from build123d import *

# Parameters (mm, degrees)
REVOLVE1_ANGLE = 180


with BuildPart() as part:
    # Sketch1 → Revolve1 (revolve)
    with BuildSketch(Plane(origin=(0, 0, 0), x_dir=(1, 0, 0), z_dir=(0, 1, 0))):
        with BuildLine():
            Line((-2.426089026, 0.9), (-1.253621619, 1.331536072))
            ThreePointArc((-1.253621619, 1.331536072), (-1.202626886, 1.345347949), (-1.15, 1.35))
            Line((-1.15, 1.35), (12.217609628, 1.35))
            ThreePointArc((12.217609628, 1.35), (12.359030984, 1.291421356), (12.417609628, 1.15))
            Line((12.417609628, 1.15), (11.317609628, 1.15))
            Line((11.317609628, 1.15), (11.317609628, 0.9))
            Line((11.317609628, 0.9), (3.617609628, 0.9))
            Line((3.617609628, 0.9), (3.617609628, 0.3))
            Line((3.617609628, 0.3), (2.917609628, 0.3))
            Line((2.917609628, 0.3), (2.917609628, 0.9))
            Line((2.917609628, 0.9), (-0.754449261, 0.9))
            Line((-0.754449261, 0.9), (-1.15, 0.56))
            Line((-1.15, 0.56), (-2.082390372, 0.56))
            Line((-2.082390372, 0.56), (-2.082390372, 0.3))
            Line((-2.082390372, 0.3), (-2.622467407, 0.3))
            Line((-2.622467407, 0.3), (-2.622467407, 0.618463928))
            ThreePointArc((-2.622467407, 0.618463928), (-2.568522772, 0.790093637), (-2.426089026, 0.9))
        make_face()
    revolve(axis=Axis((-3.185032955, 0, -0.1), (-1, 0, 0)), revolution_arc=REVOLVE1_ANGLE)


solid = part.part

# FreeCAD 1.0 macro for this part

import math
import FreeCAD as App
import Part
import Sketcher
from FreeCAD import Vector

doc = App.newDocument("Part")
body = doc.addObject("PartDesign::Body", "Body")

# Sketch on XZ plane
sketch1 = body.newObject("Sketcher::SketchObject", "Sketch")
sketch1.AttachmentSupport = (doc.getObject("XZ_Plane"), [""])
sketch1.MapMode = "FlatFace"
sketch1.addGeometry(Part.LineSegment(Vector(-1.25, -1.33, 0), Vector(-2.43, -0.9, 0)), False)
sketch1.addGeometry(Part.ArcOfCircle(Part.Circle(Vector(-2.32, -0.62, 0), Vector(0, 0, 1), 0.3), math.radians(-180), math.radians(-110)), False)
sketch1.addGeometry(Part.LineSegment(Vector(-2.62, -0.62, 0), Vector(-2.62, -0.3, 0)), False)
sketch1.addGeometry(Part.LineSegment(Vector(-2.62, -0.3, 0), Vector(-2.08, -0.3, 0)), False)
sketch1.addGeometry(Part.LineSegment(Vector(-2.08, -0.3, 0), Vector(-2.08, -0.56, 0)), False)
sketch1.addGeometry(Part.LineSegment(Vector(-2.08, -0.56, 0), Vector(-1.15, -0.56, 0)), False)
sketch1.addGeometry(Part.LineSegment(Vector(-1.15, -0.56, 0), Vector(-0.75, -0.9, 0)), False)
sketch1.addGeometry(Part.LineSegment(Vector(-0.75, -0.9, 0), Vector(2.92, -0.9, 0)), False)
sketch1.addGeometry(Part.LineSegment(Vector(2.92, -0.9, 0), Vector(2.92, -0.3, 0)), False)
sketch1.addGeometry(Part.LineSegment(Vector(2.92, -0.3, 0), Vector(3.62, -0.3, 0)), False)
sketch1.addGeometry(Part.LineSegment(Vector(3.62, -0.3, 0), Vector(3.62, -0.9, 0)), False)
sketch1.addGeometry(Part.LineSegment(Vector(3.62, -0.9, 0), Vector(11.32, -0.9, 0)), False)
sketch1.addGeometry(Part.LineSegment(Vector(11.32, -0.9, 0), Vector(11.32, -1.15, 0)), False)
sketch1.addGeometry(Part.LineSegment(Vector(11.32, -1.15, 0), Vector(12.42, -1.15, 0)), False)
sketch1.addGeometry(Part.ArcOfCircle(Part.Circle(Vector(12.22, -1.15, 0), Vector(0, 0, 1), 0.2), math.radians(-90), math.radians(0)), False)
sketch1.addGeometry(Part.LineSegment(Vector(12.22, -1.35, 0), Vector(-1.15, -1.35, 0)), False)
sketch1.addGeometry(Part.ArcOfCircle(Part.Circle(Vector(-1.15, -1.05, 0), Vector(0, 0, 1), 0.3), math.radians(-110), math.radians(-90)), False)
sketch1.addGeometry(Part.LineSegment(Vector(12.42, -0.1, 0), Vector(-2.62, -0.1, 0)), True)  # axis
sketch1.addConstraint(Sketcher.Constraint("Tangent", 0, 2, 1, 2))
sketch1.addConstraint(Sketcher.Constraint("Tangent", 1, 1, 2, 1))
sketch1.addConstraint(Sketcher.Constraint("Coincident", 2, 2, 3, 1))
sketch1.addConstraint(Sketcher.Constraint("Coincident", 3, 2, 4, 1))
sketch1.addConstraint(Sketcher.Constraint("Coincident", 4, 2, 5, 1))
sketch1.addConstraint(Sketcher.Constraint("Coincident", 5, 2, 6, 1))
sketch1.addConstraint(Sketcher.Constraint("Coincident", 6, 2, 7, 1))
sketch1.addConstraint(Sketcher.Constraint("Coincident", 7, 2, 8, 1))
sketch1.addConstraint(Sketcher.Constraint("Coincident", 8, 2, 9, 1))
sketch1.addConstraint(Sketcher.Constraint("Coincident", 9, 2, 10, 1))
sketch1.addConstraint(Sketcher.Constraint("Coincident", 10, 2, 11, 1))
sketch1.addConstraint(Sketcher.Constraint("Coincident", 11, 2, 12, 1))
sketch1.addConstraint(Sketcher.Constraint("Coincident", 12, 2, 13, 1))
sketch1.addConstraint(Sketcher.Constraint("Coincident", 13, 2, 14, 2))
sketch1.addConstraint(Sketcher.Constraint("Tangent", 14, 1, 15, 1))
sketch1.addConstraint(Sketcher.Constraint("Tangent", 15, 2, 16, 2))
sketch1.addConstraint(Sketcher.Constraint("Tangent", 16, 1, 0, 1))
sketch1.addConstraint(Sketcher.Constraint("Vertical", 2))
sketch1.addConstraint(Sketcher.Constraint("Horizontal", 3))
sketch1.addConstraint(Sketcher.Constraint("Vertical", 4))
sketch1.addConstraint(Sketcher.Constraint("Horizontal", 5))
sketch1.addConstraint(Sketcher.Constraint("Horizontal", 7))
sketch1.addConstraint(Sketcher.Constraint("Vertical", 8))
sketch1.addConstraint(Sketcher.Constraint("Horizontal", 9))
sketch1.addConstraint(Sketcher.Constraint("Vertical", 10))
sketch1.addConstraint(Sketcher.Constraint("Horizontal", 11))
sketch1.addConstraint(Sketcher.Constraint("Vertical", 12))
sketch1.addConstraint(Sketcher.Constraint("Horizontal", 13))
sketch1.addConstraint(Sketcher.Constraint("Horizontal", 15))
sketch1.addConstraint(Sketcher.Constraint("Horizontal", 17))
sketch1.addConstraint(Sketcher.Constraint("Equal", 1, 16))
sketch1.addConstraint(Sketcher.Constraint("Horizontal", 0, 2, 6, 2))
sketch1.addConstraint(Sketcher.Constraint("Horizontal", 3, 2, 8, 2))
sketch1.addConstraint(Sketcher.Constraint("Horizontal", 7, 2, 10, 2))
sketch1.addConstraint(Sketcher.Constraint("Horizontal", 14, 3, 12, 2))
sketch1.addConstraint(Sketcher.Constraint("Vertical", 16, 3, 5, 2))
sketch1.addConstraint(Sketcher.Constraint("Vertical", 13, 2, 17, 1))
sketch1.addConstraint(Sketcher.Constraint("Vertical", 2, 2, 17, 2))
sketch1.addConstraint(Sketcher.Constraint("Radius", 1, 0.3))
sketch1.addConstraint(Sketcher.Constraint("Radius", 14, 0.2))
sketch1.addConstraint(Sketcher.Constraint("DistanceX", 9, 1, 9, 2, 0.7))
sketch1.addConstraint(Sketcher.Constraint("DistanceX", 11, 1, 11, 2, 7.7))
sketch1.addConstraint(Sketcher.Constraint("DistanceX", 13, 1, 13, 2, 1.1))
sketch1.addConstraint(Sketcher.Constraint("DistanceY", 8, 1, 8, 2, 0.6))
sketch1.addConstraint(Sketcher.Constraint("DistanceX", 4, 2, 7, 2, 5.0))
sketch1.addConstraint(Sketcher.Constraint("DistanceY", 4, 2, 4, 1, 0.26))
sketch1.addConstraint(Sketcher.Constraint("DistanceY", 12, 2, 12, 1, 0.25))
sketch1.addConstraint(Sketcher.Constraint("DistanceY", 0, 2, -1, 1, 0.9))
sketch1.addConstraint(Sketcher.Constraint("DistanceY", 17, 1, -1, 1, 0.1))
sketch1.addConstraint(Sketcher.Constraint("DistanceX", 16, 3, -1, 1, 1.15))
sketch1.addConstraint(Sketcher.Constraint("DistanceX", 5, 1, 5, 2, 0.93239))
sketch1.addConstraint(Sketcher.Constraint("DistanceX", 7, 1, 7, 2, 3.672059))
sketch1.addConstraint(Sketcher.Constraint("DistanceX", 0, 2, 14, 3, 14.643699))
revolution = body.newObject("PartDesign::Revolution", "Revolution")
revolution.Profile = sketch1
revolution.ReferenceAxis = (sketch1, ["Axis0"])
revolution.Angle = 180

doc.recompute()
